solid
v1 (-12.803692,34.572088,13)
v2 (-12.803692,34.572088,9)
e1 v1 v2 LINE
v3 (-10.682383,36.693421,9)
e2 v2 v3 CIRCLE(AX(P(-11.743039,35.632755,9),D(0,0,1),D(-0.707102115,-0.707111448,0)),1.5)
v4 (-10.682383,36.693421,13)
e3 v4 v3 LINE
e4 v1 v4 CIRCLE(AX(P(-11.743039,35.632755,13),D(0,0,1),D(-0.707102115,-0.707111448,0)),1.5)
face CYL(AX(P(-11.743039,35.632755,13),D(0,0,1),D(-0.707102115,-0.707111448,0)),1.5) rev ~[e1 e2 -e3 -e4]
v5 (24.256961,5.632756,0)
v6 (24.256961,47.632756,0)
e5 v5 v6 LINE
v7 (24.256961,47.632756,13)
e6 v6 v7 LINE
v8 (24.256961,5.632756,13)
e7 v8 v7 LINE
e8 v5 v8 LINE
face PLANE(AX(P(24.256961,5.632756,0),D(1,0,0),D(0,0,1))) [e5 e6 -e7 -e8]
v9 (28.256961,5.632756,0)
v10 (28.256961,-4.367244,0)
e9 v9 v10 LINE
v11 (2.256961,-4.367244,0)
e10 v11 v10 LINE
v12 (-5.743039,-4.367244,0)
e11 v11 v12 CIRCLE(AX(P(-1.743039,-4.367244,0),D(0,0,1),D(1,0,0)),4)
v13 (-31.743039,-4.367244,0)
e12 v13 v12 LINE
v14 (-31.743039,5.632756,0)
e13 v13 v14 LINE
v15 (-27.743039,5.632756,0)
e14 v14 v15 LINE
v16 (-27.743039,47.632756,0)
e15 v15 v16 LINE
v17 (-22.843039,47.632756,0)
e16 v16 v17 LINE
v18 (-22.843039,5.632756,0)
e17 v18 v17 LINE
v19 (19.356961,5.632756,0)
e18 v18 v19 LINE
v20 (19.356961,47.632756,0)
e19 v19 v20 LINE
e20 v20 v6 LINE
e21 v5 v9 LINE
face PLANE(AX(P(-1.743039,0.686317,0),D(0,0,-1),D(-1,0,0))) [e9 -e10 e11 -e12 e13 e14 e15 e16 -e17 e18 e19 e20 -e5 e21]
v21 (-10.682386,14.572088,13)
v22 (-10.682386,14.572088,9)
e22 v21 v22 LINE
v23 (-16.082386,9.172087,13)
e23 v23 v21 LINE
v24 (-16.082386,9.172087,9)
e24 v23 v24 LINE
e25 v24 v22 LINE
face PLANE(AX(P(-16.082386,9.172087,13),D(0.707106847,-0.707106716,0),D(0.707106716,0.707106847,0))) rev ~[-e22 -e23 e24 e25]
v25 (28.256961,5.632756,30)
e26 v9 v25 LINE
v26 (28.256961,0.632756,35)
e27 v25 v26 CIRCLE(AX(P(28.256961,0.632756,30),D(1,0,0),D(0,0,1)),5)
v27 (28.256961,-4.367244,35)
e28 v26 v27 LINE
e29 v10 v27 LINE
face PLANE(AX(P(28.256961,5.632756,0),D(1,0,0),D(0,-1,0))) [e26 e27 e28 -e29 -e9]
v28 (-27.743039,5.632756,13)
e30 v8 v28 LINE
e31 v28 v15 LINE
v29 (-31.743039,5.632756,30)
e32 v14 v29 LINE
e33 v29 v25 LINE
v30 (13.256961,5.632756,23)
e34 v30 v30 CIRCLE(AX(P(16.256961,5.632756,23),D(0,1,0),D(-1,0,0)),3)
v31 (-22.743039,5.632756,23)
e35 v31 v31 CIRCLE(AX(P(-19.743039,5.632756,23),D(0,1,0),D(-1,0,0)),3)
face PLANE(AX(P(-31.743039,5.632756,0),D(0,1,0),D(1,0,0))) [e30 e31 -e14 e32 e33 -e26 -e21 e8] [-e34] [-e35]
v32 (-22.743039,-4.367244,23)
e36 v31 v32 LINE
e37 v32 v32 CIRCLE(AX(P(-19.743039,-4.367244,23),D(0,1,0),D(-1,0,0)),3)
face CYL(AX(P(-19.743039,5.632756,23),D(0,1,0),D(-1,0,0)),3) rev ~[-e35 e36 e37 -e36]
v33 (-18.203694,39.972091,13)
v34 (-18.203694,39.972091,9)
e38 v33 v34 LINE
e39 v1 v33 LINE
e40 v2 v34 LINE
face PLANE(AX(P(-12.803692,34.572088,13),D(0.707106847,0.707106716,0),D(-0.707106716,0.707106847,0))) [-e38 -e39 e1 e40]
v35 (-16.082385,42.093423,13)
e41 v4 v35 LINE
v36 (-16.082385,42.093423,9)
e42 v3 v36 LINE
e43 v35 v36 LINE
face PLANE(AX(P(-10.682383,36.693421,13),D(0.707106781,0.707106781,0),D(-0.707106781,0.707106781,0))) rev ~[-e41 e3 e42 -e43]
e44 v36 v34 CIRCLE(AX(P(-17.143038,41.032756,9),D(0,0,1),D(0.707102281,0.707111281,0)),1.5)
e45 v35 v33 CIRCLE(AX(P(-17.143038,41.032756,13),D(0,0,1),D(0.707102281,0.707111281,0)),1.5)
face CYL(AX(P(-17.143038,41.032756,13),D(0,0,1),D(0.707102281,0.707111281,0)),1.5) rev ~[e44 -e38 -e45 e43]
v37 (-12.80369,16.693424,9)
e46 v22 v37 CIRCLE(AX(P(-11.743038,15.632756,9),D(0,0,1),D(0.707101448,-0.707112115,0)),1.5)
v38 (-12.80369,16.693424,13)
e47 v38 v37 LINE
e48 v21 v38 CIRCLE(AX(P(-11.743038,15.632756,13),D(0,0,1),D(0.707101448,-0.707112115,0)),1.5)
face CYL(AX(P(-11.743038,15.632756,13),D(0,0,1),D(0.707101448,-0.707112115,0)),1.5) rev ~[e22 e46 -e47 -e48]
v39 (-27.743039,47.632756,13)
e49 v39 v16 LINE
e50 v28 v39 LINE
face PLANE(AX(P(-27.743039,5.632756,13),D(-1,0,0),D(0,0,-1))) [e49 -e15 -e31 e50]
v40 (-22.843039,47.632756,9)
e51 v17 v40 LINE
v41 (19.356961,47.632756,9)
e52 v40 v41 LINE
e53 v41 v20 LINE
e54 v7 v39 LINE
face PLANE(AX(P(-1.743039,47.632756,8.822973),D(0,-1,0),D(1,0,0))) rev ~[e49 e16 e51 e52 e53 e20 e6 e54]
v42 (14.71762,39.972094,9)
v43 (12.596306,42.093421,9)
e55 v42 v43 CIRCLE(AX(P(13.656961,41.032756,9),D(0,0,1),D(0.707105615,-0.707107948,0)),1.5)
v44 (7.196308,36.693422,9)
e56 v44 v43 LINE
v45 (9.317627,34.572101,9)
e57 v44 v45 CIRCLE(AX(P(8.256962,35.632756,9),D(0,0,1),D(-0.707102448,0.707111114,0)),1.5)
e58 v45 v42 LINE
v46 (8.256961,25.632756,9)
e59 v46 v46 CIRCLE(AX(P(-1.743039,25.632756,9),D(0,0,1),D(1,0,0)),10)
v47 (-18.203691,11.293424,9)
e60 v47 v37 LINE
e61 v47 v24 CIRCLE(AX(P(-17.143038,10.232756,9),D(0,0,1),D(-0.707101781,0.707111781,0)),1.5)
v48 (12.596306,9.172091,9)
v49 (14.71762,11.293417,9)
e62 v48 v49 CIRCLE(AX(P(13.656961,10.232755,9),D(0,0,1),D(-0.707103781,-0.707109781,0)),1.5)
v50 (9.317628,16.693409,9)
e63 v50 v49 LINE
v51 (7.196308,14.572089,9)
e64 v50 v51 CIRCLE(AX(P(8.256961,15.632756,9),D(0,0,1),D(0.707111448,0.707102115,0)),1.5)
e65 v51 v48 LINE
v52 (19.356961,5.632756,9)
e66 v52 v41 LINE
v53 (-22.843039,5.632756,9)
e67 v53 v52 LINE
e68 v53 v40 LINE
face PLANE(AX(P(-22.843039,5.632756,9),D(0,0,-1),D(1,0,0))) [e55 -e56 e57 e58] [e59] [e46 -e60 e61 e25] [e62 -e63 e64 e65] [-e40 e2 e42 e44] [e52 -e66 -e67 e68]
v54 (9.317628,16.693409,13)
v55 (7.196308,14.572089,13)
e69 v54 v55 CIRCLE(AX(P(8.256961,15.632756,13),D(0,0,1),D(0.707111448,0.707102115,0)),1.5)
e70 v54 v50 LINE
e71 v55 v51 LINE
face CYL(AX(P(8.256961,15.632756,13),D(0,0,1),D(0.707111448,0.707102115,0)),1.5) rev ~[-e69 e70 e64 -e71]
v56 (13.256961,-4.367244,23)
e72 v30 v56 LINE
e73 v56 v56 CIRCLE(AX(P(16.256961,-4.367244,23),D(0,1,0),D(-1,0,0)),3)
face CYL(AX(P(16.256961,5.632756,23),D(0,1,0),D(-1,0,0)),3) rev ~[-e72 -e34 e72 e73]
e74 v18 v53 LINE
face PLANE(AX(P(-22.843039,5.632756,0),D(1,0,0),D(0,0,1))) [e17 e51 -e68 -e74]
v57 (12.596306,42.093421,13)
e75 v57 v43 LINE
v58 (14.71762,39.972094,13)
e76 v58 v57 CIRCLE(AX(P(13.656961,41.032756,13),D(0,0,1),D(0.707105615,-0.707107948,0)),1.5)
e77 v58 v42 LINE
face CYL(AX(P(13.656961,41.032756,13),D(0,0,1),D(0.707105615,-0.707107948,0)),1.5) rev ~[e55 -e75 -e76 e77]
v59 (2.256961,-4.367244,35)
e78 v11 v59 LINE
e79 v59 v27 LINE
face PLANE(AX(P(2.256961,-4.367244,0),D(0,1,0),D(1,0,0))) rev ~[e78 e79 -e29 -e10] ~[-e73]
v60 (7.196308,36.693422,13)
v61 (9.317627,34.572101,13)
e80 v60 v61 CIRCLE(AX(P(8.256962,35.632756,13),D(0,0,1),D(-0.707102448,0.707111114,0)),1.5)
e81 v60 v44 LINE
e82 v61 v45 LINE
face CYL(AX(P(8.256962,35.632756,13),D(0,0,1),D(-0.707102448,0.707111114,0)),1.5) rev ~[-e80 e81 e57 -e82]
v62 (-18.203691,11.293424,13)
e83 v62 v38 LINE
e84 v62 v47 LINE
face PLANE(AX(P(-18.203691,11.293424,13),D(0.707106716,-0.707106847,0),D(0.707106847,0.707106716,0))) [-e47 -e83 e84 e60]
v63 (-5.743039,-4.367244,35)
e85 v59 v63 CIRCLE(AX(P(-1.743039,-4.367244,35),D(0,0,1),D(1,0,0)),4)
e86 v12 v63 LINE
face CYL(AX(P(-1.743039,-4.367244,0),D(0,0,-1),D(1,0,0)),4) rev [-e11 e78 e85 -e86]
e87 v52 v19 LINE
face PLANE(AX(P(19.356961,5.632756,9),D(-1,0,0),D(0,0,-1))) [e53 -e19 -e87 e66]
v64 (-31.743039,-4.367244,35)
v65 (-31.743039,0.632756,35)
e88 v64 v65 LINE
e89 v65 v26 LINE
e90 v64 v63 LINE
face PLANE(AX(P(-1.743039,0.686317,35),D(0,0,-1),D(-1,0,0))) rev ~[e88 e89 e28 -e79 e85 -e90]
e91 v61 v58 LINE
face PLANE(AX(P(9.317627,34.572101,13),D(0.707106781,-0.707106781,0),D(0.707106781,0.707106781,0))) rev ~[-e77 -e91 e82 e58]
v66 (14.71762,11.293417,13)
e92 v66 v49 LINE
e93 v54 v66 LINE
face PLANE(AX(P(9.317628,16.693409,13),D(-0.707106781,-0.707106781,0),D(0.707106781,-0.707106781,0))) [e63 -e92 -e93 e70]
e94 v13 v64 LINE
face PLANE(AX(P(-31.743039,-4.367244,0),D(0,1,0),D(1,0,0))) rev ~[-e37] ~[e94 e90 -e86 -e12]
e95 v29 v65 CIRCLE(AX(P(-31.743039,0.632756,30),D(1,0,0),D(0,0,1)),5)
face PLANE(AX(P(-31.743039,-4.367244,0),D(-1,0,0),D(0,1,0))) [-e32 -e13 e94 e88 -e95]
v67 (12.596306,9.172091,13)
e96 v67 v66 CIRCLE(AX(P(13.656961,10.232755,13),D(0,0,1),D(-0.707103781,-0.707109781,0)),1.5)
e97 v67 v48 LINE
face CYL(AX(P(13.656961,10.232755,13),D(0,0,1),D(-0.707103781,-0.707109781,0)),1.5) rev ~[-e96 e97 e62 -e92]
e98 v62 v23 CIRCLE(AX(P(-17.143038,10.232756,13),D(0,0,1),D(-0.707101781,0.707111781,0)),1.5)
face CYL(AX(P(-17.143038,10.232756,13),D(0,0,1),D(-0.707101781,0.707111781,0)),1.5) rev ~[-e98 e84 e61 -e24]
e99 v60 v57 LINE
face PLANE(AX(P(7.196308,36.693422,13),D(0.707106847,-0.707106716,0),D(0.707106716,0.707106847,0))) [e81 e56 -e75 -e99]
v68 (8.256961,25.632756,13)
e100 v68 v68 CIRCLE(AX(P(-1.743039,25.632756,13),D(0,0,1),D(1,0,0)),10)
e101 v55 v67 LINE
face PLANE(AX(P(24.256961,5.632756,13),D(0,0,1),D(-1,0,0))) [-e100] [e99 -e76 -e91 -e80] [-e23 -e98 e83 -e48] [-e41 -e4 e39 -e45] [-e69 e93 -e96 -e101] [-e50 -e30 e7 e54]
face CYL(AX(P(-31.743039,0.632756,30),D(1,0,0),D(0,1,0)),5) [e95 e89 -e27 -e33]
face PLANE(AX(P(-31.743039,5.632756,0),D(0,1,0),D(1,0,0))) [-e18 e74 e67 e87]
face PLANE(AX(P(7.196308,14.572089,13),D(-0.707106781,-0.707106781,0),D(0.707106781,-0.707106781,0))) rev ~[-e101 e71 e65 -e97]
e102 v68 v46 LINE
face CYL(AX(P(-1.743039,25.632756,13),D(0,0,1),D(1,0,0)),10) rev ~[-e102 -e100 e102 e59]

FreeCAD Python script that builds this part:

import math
import FreeCAD as App
import Part
import Sketcher


def edges_at(feature, points):
    """Names of the edges that pass closest to the given points."""
    edges = feature.Shape.Edges
    near = lambda p: min(range(len(edges)), key=lambda i: edges[i].distToShape(Part.Vertex(*p))[0])
    return sorted({f"Edge{near(p) + 1}" for p in points})

doc = App.newDocument("Part")
body = doc.addObject("PartDesign::Body", "Body")
body.AllowCompound = True

sketch1 = body.newObject("Sketcher::SketchObject", "Sketch")
sketch1.AttachmentSupport = (doc.getObject("XY_Plane"), [""])
sketch1.MapMode = "FlatFace"
sketch1.AttachmentOffset = App.Placement(App.Vector(0, 0, 13), App.Rotation())
sketch1.addGeometry([
    Part.Circle(App.Vector(-1.7, 25.6, 0), App.Vector(0, 0, 1), 10),
    Part.ArcOfCircle(Part.Circle(App.Vector(13.7, 41, 0), App.Vector(0, 0, 1), 1.5), math.radians(-45), math.radians(135)),
    Part.LineSegment(App.Vector(12.6, 42.1, 0), App.Vector(7.2, 36.7, 0)),
    Part.ArcOfCircle(Part.Circle(App.Vector(8.3, 35.6, 0), App.Vector(0, 0, 1), 1.5), math.radians(135), math.radians(315)),
    Part.LineSegment(App.Vector(9.3, 34.6, 0), App.Vector(14.7, 40, 0)),
    Part.ArcOfCircle(Part.Circle(App.Vector(13.7, 10.2, 0), App.Vector(0, 0, 1), 1.5), math.radians(-135), math.radians(45)),
    Part.LineSegment(App.Vector(14.7, 11.3, 0), App.Vector(9.3, 16.7, 0)),
    Part.ArcOfCircle(Part.Circle(App.Vector(8.3, 15.6, 0), App.Vector(0, 0, 1), 1.5), math.radians(45), math.radians(225)),
    Part.LineSegment(App.Vector(7.2, 14.6, 0), App.Vector(12.6, 9.2, 0)),
    Part.ArcOfCircle(Part.Circle(App.Vector(-17.1, 41, 0), App.Vector(0, 0, 1), 1.5), math.radians(45), math.radians(225)),
    Part.LineSegment(App.Vector(-18.2, 40, 0), App.Vector(-12.8, 34.6, 0)),
    Part.ArcOfCircle(Part.Circle(App.Vector(-11.7, 35.6, 0), App.Vector(0, 0, 1), 1.5), math.radians(-135), math.radians(45)),
    Part.LineSegment(App.Vector(-10.7, 36.7, 0), App.Vector(-16.1, 42.1, 0)),
    Part.ArcOfCircle(Part.Circle(App.Vector(-17.1, 10.2, 0), App.Vector(0, 0, 1), 1.5), math.radians(135), math.radians(315)),
    Part.LineSegment(App.Vector(-16.1, 9.2, 0), App.Vector(-10.7, 14.6, 0)),
    Part.ArcOfCircle(Part.Circle(App.Vector(-11.7, 15.6, 0), App.Vector(0, 0, 1), 1.5), math.radians(-45), math.radians(135)),
    Part.LineSegment(App.Vector(-12.8, 16.7, 0), App.Vector(-18.2, 11.3, 0)),
], False)
sketch1.addConstraint([
    Sketcher.Constraint("Coincident", 1, 2, 2, 1),
    Sketcher.Constraint("Coincident", 2, 2, 3, 1),
    Sketcher.Constraint("Coincident", 3, 2, 4, 1),
    Sketcher.Constraint("Tangent", 4, 2, 1, 1),
    Sketcher.Constraint("Tangent", 5, 2, 6, 1),
    Sketcher.Constraint("Coincident", 6, 2, 7, 1),
    Sketcher.Constraint("Coincident", 7, 2, 8, 1),
    Sketcher.Constraint("Coincident", 8, 2, 5, 1),
    Sketcher.Constraint("Coincident", 9, 2, 10, 1),
    Sketcher.Constraint("Coincident", 10, 2, 11, 1),
    Sketcher.Constraint("Coincident", 11, 2, 12, 1),
    Sketcher.Constraint("Coincident", 12, 2, 9, 1),
    Sketcher.Constraint("Coincident", 13, 2, 14, 1),
    Sketcher.Constraint("Coincident", 14, 2, 15, 1),
    Sketcher.Constraint("Coincident", 15, 2, 16, 1),
    Sketcher.Constraint("Coincident", 16, 2, 13, 1),
    Sketcher.Constraint("Equal", 1, 3),
    Sketcher.Constraint("Equal", 3, 5),
    Sketcher.Constraint("Equal", 5, 7),
    Sketcher.Constraint("Equal", 7, 9),
    Sketcher.Constraint("Equal", 9, 11),
    Sketcher.Constraint("Equal", 11, 13),
    Sketcher.Constraint("Equal", 13, 15),
    Sketcher.Constraint("Perpendicular", 4, 6),
    Sketcher.Constraint("Parallel", 8, 10),
    Sketcher.Constraint("Perpendicular", 12, 14),
    Sketcher.Constraint("Horizontal", 1, 3, 9, 3),
    Sketcher.Constraint("Horizontal", 3, 3, 11, 3),
    Sketcher.Constraint("Horizontal", 5, 3, 13, 3),
    Sketcher.Constraint("Horizontal", 7, 3, 15, 3),
    Sketcher.Constraint("Horizontal", 2, 2, 11, 2),
    Sketcher.Constraint("Horizontal", 1, 2, 12, 2),
    Sketcher.Constraint("Horizontal", 7, 2, 14, 2),
    Sketcher.Constraint("Vertical", 1, 3, 5, 3),
    Sketcher.Constraint("Vertical", 3, 3, 7, 3),
    Sketcher.Constraint("Vertical", 9, 3, 13, 3),
    Sketcher.Constraint("Vertical", 11, 3, 15, 3),
    Sketcher.Constraint("Vertical", 3, 2, 6, 2),
    Sketcher.Constraint("Vertical", 2, 2, 7, 2),
    Sketcher.Constraint("Vertical", 1, 2, 8, 2),
    Sketcher.Constraint("Vertical", 12, 2, 13, 2),
    Sketcher.Constraint("Equal", 10, 12),
    Sketcher.Constraint("Equal", 14, 16),
    Sketcher.Constraint("Diameter", 0, 20.0),
    Sketcher.Constraint("Radius", 1, 1.5),
    Sketcher.Constraint("DistanceX", 0, 3, 3, 3, 10.0),
    Sketcher.Constraint("DistanceY", 0, 3, 3, 3, 10.0),
    Sketcher.Constraint("DistanceY", 7, 3, 0, 3, 10.0),
    Sketcher.Constraint("DistanceX", 11, 3, 0, 3, 10.0),
    Sketcher.Constraint("DistanceX", 0, 3, 1, 3, 15.4),
    Sketcher.Constraint("DistanceY", 2, 2, 1, 2, 5.399999),
    Sketcher.Constraint("DistanceY", -1, 1, 3, 2, 34.572101),
    Sketcher.Constraint("Distance", 6, 7.636742),
    Sketcher.Constraint("DistanceX", 0, 3, -1, 1, 1.743039),
    Sketcher.Constraint("DistanceY", -1, 1, 1, 2, 42.093421),
    Sketcher.Constraint("DistanceY", -1, 1, 9, 2, 39.972091),
    Sketcher.Constraint("DistanceX", 15, 2, -1, 1, 12.80369),
])
pad1 = body.newObject("PartDesign::Pad", "Pad")
pad1.Profile = sketch1
pad1.Length = 4
pad1.Reversed = True
body2 = doc.addObject("PartDesign::Body", "Body001")
body2.AllowCompound = True

sketch2 = body2.newObject("Sketcher::SketchObject", "Sketch001")
sketch2.AttachmentSupport = (doc.getObject("XZ_Plane001"), [""])
sketch2.MapMode = "FlatFace"
sketch2.AttachmentOffset = App.Placement(App.Vector(0, 0, -5.632756), App.Rotation())
sketch2.addGeometry([
    Part.Circle(App.Vector(16.3, 23, 0), App.Vector(0, 0, 1), 3),
    Part.Circle(App.Vector(-19.7, 23, 0), App.Vector(0, 0, 1), 3),
], False)
sketch2.addConstraint([
    Sketcher.Constraint("Equal", 0, 1),
    Sketcher.Constraint("Horizontal", 0, 3, 1, 3),
    Sketcher.Constraint("Diameter", 0, 6.0),
    Sketcher.Constraint("DistanceY", -1, 1, 0, 3, 23.0),
    Sketcher.Constraint("DistanceX", 1, 3, 0, 3, 36.0),
    Sketcher.Constraint("DistanceX", -1, 1, 0, 3, 16.256961),
])
pad2 = body2.newObject("PartDesign::Pad", "Pad001")
pad2.Profile = sketch2
pad2.Length = 10
doc.recompute()

boolean = body2.newObject("PartDesign::Boolean", "Boolean")
boolean.Type = "Fuse"
boolean.addObjects([body])
body3 = doc.addObject("PartDesign::Body", "Body002")

sketch3 = body3.newObject("Sketcher::SketchObject", "Sketch002")
sketch3.AttachmentSupport = (doc.getObject("XY_Plane002"), [""])
sketch3.MapMode = "FlatFace"
sketch3.addGeometry([
    Part.LineSegment(App.Vector(28.3, 5.6, 0), App.Vector(-31.7, 5.6, 0)),
    Part.LineSegment(App.Vector(-31.7, 5.6, 0), App.Vector(-31.7, -4.4, 0)),
    Part.LineSegment(App.Vector(-31.7, -4.4, 0), App.Vector(-5.7, -4.4, 0)),
    Part.ArcOfCircle(Part.Circle(App.Vector(-1.7, -4.4, 0), App.Vector(0, 0, 1), 4), math.radians(0), math.radians(180)),
    Part.LineSegment(App.Vector(2.3, -4.4, 0), App.Vector(28.3, -4.4, 0)),
    Part.LineSegment(App.Vector(28.3, -4.4, 0), App.Vector(28.3, 5.6, 0)),
], False)
sketch3.addConstraint([
    Sketcher.Constraint("Coincident", 0, 2, 1, 1),
    Sketcher.Constraint("Coincident", 1, 2, 2, 1),
    Sketcher.Constraint("Coincident", 2, 2, 3, 2),
    Sketcher.Constraint("Coincident", 3, 1, 4, 1),
    Sketcher.Constraint("Coincident", 4, 2, 5, 1),
    Sketcher.Constraint("Coincident", 5, 2, 0, 1),
    Sketcher.Constraint("Horizontal", 0),
    Sketcher.Constraint("Vertical", 1),
    Sketcher.Constraint("Horizontal", 2),
    Sketcher.Constraint("Horizontal", 4),
    Sketcher.Constraint("Vertical", 5),
    Sketcher.Constraint("Horizontal", 3, 3, 1, 2),
    Sketcher.Constraint("Horizontal", 2, 2, 3, 1),
    Sketcher.Constraint("Equal", 2, 4),
    Sketcher.Constraint("Radius", 3, 4.0),
    Sketcher.Constraint("DistanceX", 0, 2, 0, 1, 60.0),
    Sketcher.Constraint("DistanceY", 1, 2, 1, 1, 10.0),
    Sketcher.Constraint("DistanceX", 3, 3, -1, 1, 1.743039),
    Sketcher.Constraint("DistanceY", 3, 3, -1, 1, 4.367244),
])
pad3 = body3.newObject("PartDesign::Pad", "Pad002")
pad3.Profile = sketch3
pad3.Length = 35
body4 = doc.addObject("PartDesign::Body", "Body003")

sketch4 = body4.newObject("Sketcher::SketchObject", "Sketch003")
sketch4.AttachmentSupport = (doc.getObject("XZ_Plane003"), [""])
sketch4.MapMode = "FlatFace"
sketch4.AttachmentOffset = App.Placement(App.Vector(0, 0, -5.632756), App.Rotation())
sketch4.addGeometry([
    Part.LineSegment(App.Vector(-27.7, 13, 0), App.Vector(24.3, 13, 0)),
    Part.LineSegment(App.Vector(24.3, 13, 0), App.Vector(24.3, 0, 0)),
    Part.LineSegment(App.Vector(24.3, 0, 0), App.Vector(19.4, 0, 0)),
    Part.LineSegment(App.Vector(19.4, 0, 0), App.Vector(19.4, 9, 0)),
    Part.LineSegment(App.Vector(19.4, 9, 0), App.Vector(-22.8, 9, 0)),
    Part.LineSegment(App.Vector(-22.8, 9, 0), App.Vector(-22.8, 0, 0)),
    Part.LineSegment(App.Vector(-22.8, 0, 0), App.Vector(-27.7, 0, 0)),
    Part.LineSegment(App.Vector(-27.7, 0, 0), App.Vector(-27.7, 13, 0)),
], False)
sketch4.addConstraint([
    Sketcher.Constraint("Coincident", 0, 2, 1, 1),
    Sketcher.Constraint("Coincident", 1, 2, 2, 1),
    Sketcher.Constraint("Coincident", 2, 2, 3, 1),
    Sketcher.Constraint("Coincident", 3, 2, 4, 1),
    Sketcher.Constraint("Coincident", 4, 2, 5, 1),
    Sketcher.Constraint("Coincident", 5, 2, 6, 1),
    Sketcher.Constraint("Coincident", 6, 2, 7, 1),
    Sketcher.Constraint("Coincident", 7, 2, 0, 1),
    Sketcher.Constraint("Horizontal", 0),
    Sketcher.Constraint("Vertical", 1),
    Sketcher.Constraint("Horizontal", 2),
    Sketcher.Constraint("Vertical", 3),
    Sketcher.Constraint("Horizontal", 4),
    Sketcher.Constraint("Vertical", 5),
    Sketcher.Constraint("Horizontal", 6),
    Sketcher.Constraint("Vertical", 7),
    Sketcher.Constraint("PointOnObject", 1, 2, -1),
    Sketcher.Constraint("PointOnObject", 5, 2, -1),
    Sketcher.Constraint("Equal", 2, 6),
    Sketcher.Constraint("DistanceX", 0, 1, 0, 2, 52.0),
    Sketcher.Constraint("DistanceY", 1, 2, 1, 1, 13.0),
    Sketcher.Constraint("DistanceY", 3, 1, 3, 2, 9.0),
    Sketcher.Constraint("DistanceX", 2, 2, 2, 1, 4.9),
    Sketcher.Constraint("DistanceX", -1, 1, 0, 2, 24.256961),
])
pad4 = body4.newObject("PartDesign::Pad", "Pad003")
pad4.Profile = sketch4
pad4.Length = 42
pad4.Reversed = True
doc.recompute()

boolean2 = body4.newObject("PartDesign::Boolean", "Boolean001")
boolean2.Type = "Fuse"
boolean2.addObjects([body3])
doc.recompute()

boolean3 = body4.newObject("PartDesign::Boolean", "Boolean002")
boolean3.Type = "Cut"
boolean3.addObjects([body2])
doc.recompute()

fillet = body4.newObject("PartDesign::Fillet", "Fillet")
fillet.Base = (boolean3, edges_at(boolean3, [(-1.743, 5.633, 35)]))
fillet.Radius = 5

doc.recompute()
